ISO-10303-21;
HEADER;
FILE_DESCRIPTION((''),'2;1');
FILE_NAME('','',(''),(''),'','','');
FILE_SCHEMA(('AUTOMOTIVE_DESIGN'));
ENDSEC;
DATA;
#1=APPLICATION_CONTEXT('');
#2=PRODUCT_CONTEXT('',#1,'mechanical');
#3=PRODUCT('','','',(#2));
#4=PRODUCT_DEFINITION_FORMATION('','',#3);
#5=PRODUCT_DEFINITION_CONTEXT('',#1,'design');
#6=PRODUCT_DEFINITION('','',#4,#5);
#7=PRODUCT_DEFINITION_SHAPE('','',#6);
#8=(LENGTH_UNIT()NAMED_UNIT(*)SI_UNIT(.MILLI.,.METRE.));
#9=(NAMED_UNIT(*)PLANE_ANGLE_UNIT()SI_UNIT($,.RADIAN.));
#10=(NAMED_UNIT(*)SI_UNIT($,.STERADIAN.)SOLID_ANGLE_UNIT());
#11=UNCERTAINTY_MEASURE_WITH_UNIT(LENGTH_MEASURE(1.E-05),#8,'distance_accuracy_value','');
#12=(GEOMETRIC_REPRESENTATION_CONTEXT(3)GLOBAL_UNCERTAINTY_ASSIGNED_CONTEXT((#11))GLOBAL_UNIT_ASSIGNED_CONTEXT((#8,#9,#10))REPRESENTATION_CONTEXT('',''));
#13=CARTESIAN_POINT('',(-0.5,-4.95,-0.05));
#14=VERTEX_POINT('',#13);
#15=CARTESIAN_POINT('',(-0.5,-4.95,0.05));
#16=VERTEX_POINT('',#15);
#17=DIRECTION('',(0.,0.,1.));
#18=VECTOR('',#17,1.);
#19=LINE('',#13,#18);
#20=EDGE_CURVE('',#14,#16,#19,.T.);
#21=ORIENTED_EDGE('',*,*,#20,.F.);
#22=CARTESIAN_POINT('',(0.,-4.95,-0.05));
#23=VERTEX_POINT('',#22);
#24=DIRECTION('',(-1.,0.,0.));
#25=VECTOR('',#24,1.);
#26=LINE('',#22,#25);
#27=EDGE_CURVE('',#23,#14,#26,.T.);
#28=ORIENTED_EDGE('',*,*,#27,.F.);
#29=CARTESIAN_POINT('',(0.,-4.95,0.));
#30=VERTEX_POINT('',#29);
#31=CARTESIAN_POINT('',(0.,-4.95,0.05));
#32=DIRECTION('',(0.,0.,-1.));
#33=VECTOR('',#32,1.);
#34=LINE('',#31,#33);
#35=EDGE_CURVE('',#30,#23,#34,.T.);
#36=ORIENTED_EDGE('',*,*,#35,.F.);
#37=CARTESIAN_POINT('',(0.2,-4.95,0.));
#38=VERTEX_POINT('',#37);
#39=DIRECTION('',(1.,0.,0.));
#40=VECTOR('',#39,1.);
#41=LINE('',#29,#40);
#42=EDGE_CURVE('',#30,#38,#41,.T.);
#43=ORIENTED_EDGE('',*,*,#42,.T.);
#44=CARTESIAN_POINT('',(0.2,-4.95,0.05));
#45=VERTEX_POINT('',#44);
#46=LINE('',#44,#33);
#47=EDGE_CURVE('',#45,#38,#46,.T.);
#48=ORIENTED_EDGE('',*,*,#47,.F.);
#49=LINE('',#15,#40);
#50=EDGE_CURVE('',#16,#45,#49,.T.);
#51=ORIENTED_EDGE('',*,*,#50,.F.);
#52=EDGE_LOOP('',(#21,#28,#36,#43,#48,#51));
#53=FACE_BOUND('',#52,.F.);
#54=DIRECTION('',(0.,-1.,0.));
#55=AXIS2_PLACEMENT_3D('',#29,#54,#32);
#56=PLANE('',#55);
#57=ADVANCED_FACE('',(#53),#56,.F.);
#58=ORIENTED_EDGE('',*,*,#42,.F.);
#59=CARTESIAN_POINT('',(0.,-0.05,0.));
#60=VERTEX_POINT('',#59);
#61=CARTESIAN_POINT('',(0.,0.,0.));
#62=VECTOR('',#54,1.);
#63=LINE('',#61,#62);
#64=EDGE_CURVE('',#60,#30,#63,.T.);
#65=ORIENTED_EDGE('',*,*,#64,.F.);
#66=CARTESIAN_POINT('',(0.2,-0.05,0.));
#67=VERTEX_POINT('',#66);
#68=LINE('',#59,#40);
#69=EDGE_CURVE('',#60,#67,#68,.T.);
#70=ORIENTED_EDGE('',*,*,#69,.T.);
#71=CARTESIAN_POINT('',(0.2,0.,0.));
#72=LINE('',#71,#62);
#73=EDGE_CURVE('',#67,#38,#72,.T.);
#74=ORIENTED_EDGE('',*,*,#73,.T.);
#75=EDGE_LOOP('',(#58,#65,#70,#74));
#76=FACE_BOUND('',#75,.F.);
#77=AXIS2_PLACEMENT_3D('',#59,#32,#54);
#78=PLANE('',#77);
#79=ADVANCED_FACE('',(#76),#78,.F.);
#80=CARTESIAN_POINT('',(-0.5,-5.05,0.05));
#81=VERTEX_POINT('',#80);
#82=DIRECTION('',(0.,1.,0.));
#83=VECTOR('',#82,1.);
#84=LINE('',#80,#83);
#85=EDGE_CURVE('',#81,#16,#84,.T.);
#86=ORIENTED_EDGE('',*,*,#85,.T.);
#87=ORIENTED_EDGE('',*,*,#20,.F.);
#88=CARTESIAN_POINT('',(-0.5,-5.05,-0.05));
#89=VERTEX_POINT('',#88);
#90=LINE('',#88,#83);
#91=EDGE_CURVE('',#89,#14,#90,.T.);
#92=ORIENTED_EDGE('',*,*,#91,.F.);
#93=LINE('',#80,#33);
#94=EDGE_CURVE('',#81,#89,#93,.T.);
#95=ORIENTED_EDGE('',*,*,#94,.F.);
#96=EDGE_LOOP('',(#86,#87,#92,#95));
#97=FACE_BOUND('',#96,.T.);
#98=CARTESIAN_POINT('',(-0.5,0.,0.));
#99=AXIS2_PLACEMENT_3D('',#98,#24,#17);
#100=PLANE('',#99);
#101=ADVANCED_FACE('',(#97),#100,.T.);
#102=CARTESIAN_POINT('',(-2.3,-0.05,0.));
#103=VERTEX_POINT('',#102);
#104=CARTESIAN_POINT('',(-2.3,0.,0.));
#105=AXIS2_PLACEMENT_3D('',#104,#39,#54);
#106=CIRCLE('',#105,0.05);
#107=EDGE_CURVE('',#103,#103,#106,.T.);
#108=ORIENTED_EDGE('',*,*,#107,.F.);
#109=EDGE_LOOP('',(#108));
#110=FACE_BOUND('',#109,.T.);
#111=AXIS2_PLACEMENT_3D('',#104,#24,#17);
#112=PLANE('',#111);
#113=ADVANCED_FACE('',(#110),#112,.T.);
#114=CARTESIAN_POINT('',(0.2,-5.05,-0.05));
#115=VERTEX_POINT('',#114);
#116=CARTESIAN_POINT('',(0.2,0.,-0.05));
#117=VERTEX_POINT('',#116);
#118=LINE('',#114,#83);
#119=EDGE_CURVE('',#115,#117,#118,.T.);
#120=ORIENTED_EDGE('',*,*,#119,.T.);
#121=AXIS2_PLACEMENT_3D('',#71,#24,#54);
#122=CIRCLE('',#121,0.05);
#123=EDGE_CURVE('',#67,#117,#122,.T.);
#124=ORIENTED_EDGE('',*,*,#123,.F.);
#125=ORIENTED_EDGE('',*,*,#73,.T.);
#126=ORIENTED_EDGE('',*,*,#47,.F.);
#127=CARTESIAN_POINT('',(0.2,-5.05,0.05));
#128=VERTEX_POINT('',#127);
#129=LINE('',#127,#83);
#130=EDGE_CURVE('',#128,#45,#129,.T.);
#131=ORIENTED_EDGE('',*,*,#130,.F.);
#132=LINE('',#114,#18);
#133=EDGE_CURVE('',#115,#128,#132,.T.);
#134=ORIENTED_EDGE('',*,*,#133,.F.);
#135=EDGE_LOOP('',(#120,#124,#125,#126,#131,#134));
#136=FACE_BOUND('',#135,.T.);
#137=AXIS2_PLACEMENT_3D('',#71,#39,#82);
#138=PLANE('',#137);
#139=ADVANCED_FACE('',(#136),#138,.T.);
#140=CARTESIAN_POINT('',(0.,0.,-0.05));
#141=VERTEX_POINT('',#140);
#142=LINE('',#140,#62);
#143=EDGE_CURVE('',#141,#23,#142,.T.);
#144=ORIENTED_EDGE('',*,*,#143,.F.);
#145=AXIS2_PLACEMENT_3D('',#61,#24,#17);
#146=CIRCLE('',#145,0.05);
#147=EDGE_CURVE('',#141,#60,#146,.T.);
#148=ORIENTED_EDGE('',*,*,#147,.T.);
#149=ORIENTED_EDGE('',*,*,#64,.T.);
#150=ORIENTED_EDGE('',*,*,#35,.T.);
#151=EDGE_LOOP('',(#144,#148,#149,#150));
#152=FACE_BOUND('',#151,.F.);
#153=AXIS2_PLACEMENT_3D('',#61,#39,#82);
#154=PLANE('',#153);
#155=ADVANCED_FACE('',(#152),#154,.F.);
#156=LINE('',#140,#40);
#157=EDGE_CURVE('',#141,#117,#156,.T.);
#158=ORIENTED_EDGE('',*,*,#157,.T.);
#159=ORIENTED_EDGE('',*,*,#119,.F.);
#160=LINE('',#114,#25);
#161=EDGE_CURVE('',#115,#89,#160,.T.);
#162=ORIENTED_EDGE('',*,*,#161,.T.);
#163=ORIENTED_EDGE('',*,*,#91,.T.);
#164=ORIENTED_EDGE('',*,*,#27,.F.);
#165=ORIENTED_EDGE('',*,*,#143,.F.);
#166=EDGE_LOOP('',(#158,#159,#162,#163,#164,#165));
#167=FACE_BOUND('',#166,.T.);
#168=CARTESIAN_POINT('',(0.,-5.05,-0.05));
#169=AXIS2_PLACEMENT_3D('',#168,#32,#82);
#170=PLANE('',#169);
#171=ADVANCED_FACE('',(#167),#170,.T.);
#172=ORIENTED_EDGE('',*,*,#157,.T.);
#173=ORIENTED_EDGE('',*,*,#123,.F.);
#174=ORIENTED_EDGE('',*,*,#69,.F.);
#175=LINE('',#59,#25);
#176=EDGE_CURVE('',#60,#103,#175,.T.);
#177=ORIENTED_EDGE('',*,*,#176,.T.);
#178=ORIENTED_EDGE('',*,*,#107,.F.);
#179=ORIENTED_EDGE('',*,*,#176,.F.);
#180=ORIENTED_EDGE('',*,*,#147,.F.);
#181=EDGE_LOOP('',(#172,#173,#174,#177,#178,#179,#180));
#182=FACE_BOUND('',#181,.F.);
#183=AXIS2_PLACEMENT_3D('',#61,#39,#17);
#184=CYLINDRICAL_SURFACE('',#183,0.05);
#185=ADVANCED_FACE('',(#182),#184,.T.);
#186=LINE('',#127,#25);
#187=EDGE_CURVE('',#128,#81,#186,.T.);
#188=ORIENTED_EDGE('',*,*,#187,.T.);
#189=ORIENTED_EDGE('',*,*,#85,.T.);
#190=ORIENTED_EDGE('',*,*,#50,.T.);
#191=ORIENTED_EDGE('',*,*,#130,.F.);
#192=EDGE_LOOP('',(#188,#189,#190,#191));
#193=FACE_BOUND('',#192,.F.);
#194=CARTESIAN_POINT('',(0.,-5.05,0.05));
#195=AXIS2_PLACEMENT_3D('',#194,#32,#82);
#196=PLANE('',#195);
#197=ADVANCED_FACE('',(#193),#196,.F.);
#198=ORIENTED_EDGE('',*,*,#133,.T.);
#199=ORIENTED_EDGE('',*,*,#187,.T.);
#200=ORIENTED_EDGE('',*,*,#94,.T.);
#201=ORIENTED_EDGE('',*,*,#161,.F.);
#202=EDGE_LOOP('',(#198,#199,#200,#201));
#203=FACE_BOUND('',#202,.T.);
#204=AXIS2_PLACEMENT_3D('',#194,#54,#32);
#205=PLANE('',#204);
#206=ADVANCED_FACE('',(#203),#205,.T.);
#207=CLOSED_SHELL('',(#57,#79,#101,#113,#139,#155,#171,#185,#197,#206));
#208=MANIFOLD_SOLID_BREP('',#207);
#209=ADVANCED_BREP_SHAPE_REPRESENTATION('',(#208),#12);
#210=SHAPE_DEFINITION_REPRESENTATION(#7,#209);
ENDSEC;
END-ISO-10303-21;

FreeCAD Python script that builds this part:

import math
import FreeCAD as App
import Part
import Sketcher


def add_polygon(sketch, points):
    """Adds a closed chain of lines whose ends are joined by coincident constraints."""
    first, n = sketch.GeometryCount, len(points)
    for a, b in zip(points, points[1:] + points[:1]):
        sketch.addGeometry(Part.LineSegment(App.Vector(*a, 0), App.Vector(*b, 0)), False)
    for i in range(n):
        sketch.addConstraint(Sketcher.Constraint("Coincident", first + i, 2, first + (i + 1) % n, 1))

doc = App.newDocument("Part")
body = doc.addObject("PartDesign::Body", "Body")

sketch1 = body.newObject("Sketcher::SketchObject", "Sketch")
sketch1.AttachmentSupport = (doc.getObject("YZ_Plane"), [""])
sketch1.MapMode = "FlatFace"
sketch1.addGeometry([
    Part.LineSegment(App.Vector(-0.05, 0, 0), App.Vector(-4.95, 0, 0)),
    Part.LineSegment(App.Vector(-4.95, 0, 0), App.Vector(-4.95, 0.05, 0)),
    Part.LineSegment(App.Vector(-4.95, 0.05, 0), App.Vector(-5.05, 0.05, 0)),
    Part.LineSegment(App.Vector(-5.05, 0.05, 0), App.Vector(-5.05, -0.05, 0)),
    Part.LineSegment(App.Vector(-5.05, -0.05, 0), App.Vector(0, -0.05, 0)),
    Part.ArcOfCircle(Part.Circle(App.Vector(0, 0, 0), App.Vector(0, 0, 1), 0.05), math.radians(-90), math.radians(180)),
], False)
sketch1.addConstraint([
    Sketcher.Constraint("Coincident", 0, 2, 1, 1),
    Sketcher.Constraint("Coincident", 1, 2, 2, 1),
    Sketcher.Constraint("Coincident", 2, 2, 3, 1),
    Sketcher.Constraint("Coincident", 3, 2, 4, 1),
    Sketcher.Constraint("Tangent", 4, 2, 5, 1),
    Sketcher.Constraint("Coincident", 5, 2, 0, 1),
    Sketcher.Constraint("Horizontal", 0),
    Sketcher.Constraint("Vertical", 1),
    Sketcher.Constraint("Horizontal", 2),
    Sketcher.Constraint("Vertical", 3),
    Sketcher.Constraint("Horizontal", 4),
    Sketcher.Constraint("Coincident", 5, 3, -1, 1),
    Sketcher.Constraint("PointOnObject", 0, 2, -1),
    Sketcher.Constraint("Equal", 2, 3),
    Sketcher.Constraint("Radius", 5, 0.05),
    Sketcher.Constraint("DistanceX", 2, 2, 2, 1, 0.1),
    Sketcher.Constraint("DistanceX", 2, 2, 5, 2, 5.0),
])
pad1 = body.newObject("PartDesign::Pad", "Pad")
pad1.Profile = sketch1
pad1.Length = 0.2

sketch2 = body.newObject("Sketcher::SketchObject", "Sketch001")
sketch2.AttachmentSupport = (doc.getObject("YZ_Plane"), [""])
sketch2.MapMode = "FlatFace"
sketch2.addGeometry(Part.Circle(App.Vector(0, 0, 0), App.Vector(0, 0, 1), 0.05), False)
sketch2.addConstraint([
    Sketcher.Constraint("Coincident", 0, 3, -1, 1),
    Sketcher.Constraint("Diameter", 0, 0.1),
])
pad2 = body.newObject("PartDesign::Pad", "Pad001")
pad2.Profile = sketch2
pad2.Length = 2.3
pad2.Reversed = True

sketch3 = body.newObject("Sketcher::SketchObject", "Sketch002")
sketch3.AttachmentSupport = (doc.getObject("YZ_Plane"), [""])
sketch3.MapMode = "FlatFace"
add_polygon(sketch3, [(-4.95, -0.05), (-5.05, -0.05), (-5.05, 0.05), (-4.95, 0.05)])
sketch3.addConstraint([
    Sketcher.Constraint("Horizontal", 0),
    Sketcher.Constraint("Vertical", 1),
    Sketcher.Constraint("Horizontal", 2),
    Sketcher.Constraint("Vertical", 3),
    Sketcher.Constraint("Equal", 2, 1),
    Sketcher.Constraint("DistanceX", 0, 2, 0, 1, 0.1),
    Sketcher.Constraint("DistanceX", 0, 2, -1, 1, 5.05),
    Sketcher.Constraint("DistanceY", 0, 2, -1, 1, 0.05),
])
pad3 = body.newObject("PartDesign::Pad", "Pad002")
pad3.Profile = sketch3
pad3.Length = 0.5
pad3.Reversed = True

doc.recompute()
